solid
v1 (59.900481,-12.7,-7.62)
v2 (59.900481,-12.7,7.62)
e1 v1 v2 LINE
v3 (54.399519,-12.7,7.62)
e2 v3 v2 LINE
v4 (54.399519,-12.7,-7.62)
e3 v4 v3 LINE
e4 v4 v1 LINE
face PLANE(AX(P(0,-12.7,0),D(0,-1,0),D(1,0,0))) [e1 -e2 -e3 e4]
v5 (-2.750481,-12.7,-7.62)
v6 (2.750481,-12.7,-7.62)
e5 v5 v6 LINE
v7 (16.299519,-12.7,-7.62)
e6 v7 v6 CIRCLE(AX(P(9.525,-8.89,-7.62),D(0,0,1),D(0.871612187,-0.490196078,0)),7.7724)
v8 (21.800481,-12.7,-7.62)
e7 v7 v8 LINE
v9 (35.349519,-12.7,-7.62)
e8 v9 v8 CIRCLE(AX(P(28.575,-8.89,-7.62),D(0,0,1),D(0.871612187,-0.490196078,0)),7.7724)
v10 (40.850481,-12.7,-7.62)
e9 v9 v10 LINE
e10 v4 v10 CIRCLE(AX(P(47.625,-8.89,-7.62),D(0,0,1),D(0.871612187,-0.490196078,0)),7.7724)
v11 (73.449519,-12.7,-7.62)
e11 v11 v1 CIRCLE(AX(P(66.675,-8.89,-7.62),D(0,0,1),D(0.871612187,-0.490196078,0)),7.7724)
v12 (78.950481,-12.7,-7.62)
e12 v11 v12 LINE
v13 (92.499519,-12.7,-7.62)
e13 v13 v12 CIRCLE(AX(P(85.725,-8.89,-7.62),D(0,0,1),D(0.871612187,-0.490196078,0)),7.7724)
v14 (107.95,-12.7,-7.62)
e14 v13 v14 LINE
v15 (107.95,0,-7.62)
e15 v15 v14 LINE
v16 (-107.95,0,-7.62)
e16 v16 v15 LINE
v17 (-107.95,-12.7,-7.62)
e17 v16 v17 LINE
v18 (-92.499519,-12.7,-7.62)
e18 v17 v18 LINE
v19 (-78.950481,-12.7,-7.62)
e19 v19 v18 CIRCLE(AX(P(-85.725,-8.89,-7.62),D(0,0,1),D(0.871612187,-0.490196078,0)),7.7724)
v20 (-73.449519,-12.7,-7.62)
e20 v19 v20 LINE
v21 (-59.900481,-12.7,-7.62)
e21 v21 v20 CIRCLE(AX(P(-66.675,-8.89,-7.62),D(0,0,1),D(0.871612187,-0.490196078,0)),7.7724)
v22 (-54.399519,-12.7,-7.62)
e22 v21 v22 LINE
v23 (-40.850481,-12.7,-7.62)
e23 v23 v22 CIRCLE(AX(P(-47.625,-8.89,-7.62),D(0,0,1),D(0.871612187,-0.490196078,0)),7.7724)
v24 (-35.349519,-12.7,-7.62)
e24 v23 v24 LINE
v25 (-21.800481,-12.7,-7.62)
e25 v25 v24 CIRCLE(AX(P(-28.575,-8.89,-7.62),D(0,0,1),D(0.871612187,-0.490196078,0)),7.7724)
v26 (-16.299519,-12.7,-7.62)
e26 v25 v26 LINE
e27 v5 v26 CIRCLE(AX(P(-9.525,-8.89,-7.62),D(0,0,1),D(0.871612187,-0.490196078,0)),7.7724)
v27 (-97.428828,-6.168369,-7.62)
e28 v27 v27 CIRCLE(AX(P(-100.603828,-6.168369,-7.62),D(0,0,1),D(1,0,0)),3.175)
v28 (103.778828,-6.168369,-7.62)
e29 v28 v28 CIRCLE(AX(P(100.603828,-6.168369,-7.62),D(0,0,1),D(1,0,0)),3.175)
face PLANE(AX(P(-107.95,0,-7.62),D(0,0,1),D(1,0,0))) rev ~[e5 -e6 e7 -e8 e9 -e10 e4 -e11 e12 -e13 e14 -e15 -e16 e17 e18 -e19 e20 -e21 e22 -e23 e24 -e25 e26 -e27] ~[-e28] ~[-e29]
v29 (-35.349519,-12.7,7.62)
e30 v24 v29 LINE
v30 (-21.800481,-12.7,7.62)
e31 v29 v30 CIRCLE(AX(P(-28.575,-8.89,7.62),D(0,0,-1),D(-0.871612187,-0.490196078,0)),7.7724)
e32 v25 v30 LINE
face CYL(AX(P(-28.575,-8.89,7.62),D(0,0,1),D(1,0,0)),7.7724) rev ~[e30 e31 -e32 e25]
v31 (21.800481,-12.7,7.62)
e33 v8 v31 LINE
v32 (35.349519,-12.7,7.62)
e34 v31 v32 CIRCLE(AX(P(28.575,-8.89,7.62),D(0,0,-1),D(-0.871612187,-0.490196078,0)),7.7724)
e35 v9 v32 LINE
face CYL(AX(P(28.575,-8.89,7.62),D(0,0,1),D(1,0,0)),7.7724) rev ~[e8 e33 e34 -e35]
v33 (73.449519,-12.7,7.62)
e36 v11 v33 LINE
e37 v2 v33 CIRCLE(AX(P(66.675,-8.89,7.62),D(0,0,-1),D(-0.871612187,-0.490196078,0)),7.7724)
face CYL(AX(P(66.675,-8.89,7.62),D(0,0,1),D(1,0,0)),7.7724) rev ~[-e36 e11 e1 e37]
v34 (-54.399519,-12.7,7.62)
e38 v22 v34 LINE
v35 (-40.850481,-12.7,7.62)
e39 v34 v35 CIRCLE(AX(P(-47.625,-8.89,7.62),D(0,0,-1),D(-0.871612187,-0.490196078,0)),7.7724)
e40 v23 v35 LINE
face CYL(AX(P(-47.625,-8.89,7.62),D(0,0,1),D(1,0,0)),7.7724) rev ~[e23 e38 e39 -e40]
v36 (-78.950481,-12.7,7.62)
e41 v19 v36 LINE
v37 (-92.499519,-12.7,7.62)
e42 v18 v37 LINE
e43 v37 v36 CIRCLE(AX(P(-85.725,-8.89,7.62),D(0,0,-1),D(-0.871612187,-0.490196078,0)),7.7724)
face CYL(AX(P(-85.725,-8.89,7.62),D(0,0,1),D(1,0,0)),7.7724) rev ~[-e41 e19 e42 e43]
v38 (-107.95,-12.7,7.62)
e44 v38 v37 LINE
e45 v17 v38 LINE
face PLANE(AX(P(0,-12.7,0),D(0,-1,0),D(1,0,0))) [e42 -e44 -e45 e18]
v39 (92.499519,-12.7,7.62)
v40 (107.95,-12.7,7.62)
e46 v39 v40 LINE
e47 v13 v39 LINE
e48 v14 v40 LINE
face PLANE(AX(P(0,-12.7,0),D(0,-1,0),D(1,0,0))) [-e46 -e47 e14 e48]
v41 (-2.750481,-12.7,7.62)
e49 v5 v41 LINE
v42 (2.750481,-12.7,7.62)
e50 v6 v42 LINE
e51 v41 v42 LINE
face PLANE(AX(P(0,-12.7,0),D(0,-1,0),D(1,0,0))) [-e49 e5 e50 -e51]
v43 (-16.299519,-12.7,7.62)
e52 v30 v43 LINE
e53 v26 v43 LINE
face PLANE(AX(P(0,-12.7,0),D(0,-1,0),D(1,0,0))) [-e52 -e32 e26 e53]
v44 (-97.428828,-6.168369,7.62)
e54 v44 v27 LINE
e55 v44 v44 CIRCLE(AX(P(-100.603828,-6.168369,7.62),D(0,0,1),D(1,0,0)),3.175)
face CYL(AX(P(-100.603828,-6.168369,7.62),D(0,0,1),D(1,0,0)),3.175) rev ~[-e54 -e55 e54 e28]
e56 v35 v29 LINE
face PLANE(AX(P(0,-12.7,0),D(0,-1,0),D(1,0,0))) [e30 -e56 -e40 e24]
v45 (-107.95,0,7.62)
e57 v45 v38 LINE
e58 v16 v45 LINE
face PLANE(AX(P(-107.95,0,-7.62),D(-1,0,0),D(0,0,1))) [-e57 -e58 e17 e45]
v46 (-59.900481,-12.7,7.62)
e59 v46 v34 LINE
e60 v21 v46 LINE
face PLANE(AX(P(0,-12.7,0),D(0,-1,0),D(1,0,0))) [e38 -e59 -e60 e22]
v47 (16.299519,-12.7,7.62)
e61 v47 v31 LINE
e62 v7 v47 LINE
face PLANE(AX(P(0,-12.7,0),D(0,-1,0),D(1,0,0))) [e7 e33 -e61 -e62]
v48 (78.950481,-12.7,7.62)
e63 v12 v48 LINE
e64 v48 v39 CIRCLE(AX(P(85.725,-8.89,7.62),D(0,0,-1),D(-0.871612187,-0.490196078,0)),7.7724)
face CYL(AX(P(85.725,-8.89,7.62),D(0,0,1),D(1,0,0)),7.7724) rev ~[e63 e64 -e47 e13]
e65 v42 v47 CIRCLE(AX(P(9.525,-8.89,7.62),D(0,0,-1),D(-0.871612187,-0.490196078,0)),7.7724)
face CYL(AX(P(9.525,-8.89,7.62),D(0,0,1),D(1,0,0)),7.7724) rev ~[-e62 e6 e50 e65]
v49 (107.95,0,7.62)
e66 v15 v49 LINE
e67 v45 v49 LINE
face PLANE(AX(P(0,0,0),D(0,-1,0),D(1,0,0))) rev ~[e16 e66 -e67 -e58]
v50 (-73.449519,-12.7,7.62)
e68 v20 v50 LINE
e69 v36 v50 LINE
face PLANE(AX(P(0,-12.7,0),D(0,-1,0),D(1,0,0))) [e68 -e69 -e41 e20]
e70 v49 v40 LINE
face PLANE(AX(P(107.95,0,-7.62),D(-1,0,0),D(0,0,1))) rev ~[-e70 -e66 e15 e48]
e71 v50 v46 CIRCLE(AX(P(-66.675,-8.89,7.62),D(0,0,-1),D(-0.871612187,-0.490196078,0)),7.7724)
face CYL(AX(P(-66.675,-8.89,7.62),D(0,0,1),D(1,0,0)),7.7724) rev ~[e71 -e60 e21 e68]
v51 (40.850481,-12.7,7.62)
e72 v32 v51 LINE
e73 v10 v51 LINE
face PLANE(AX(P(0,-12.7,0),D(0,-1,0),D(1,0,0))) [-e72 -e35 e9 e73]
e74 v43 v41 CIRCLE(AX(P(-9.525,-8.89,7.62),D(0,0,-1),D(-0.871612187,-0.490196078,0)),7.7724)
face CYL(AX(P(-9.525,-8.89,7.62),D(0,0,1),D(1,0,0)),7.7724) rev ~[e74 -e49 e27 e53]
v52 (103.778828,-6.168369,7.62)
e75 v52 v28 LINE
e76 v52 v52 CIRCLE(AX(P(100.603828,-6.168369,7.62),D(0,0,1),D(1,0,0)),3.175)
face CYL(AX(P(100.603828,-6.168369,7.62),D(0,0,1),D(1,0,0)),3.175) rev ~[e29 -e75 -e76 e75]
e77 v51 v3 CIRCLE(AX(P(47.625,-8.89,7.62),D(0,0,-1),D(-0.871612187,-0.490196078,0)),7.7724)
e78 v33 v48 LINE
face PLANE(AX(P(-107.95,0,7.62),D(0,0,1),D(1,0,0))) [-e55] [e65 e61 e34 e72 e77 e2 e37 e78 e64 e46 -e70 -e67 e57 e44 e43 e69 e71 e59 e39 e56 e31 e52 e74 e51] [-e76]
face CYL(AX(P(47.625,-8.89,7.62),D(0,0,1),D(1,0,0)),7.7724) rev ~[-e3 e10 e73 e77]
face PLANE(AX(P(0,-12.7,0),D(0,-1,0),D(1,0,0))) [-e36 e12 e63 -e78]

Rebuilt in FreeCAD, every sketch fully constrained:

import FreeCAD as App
import Part
import Sketcher

V = App.Vector
Q = App.Units.Quantity


def add_polygon(sketch, points):
    """Adds a closed chain of lines whose ends are joined by coincident constraints."""
    first, n = sketch.GeometryCount, len(points)
    for a, b in zip(points, points[1:] + points[:1]):
        sketch.addGeometry(Part.LineSegment(App.Vector(*a, 0), App.Vector(*b, 0)), False)
    for i in range(n):
        sketch.addConstraint(Sketcher.Constraint("Coincident", first + i, 2, first + (i + 1) % n, 1))

doc = App.newDocument("Part")
body = doc.addObject("PartDesign::Body", "Body")

# Sketch on XZ plane
sketch1 = body.newObject("Sketcher::SketchObject", "Sketch")
sketch1.AttachmentSupport = (doc.getObject("XZ_Plane"), [""])
sketch1.MapMode = "FlatFace"
add_polygon(sketch1, [(-108, 8), (-108, -8), (108, -8), (108, 8)])  # lines 0-3
sketch1.addConstraint([
    Sketcher.Constraint("Vertical", 0),
    Sketcher.Constraint("Horizontal", 1),
    Sketcher.Constraint("Vertical", 2),
    Sketcher.Constraint("Horizontal", 3),
    Sketcher.Constraint("Symmetric", 0, 2, 2, 2, -1, 1),
    Sketcher.Constraint("DistanceX", 1, 1, 1, 2, Q("8.5 in")),
    Sketcher.Constraint("DistanceY", 0, 2, 0, 1, Q("0.6 in")),
])
pad1 = body.newObject("PartDesign::Pad", "Pad")
pad1.Profile = sketch1
pad1.Length = Q("0.5 in")

# Sketch on XY plane
sketch2 = body.newObject("Sketcher::SketchObject", "Sketch001")
sketch2.AttachmentSupport = (doc.getObject("XY_Plane"), [""])
sketch2.MapMode = "FlatFace"
sketch2.AttachmentOffset = App.Placement(V(0, 0, 0.3 * 25.4), App.Rotation())
sketch2.addGeometry([
    Part.Circle(V(-86, -9, 0), V(0, 0, 1), 8),  # 0
    Part.Circle(V(-67, -9, 0), V(0, 0, 1), 8),  # 1
    Part.Circle(V(-48, -9, 0), V(0, 0, 1), 8),  # 2
    Part.Circle(V(-29, -9, 0), V(0, 0, 1), 8),  # 3
    Part.Circle(V(-10, -9, 0), V(0, 0, 1), 8),  # 4
    Part.Circle(V(10, -9, 0), V(0, 0, 1), 8),  # 5
    Part.Circle(V(29, -9, 0), V(0, 0, 1), 8),  # 6
    Part.Circle(V(48, -9, 0), V(0, 0, 1), 8),  # 7
    Part.Circle(V(67, -9, 0), V(0, 0, 1), 8),  # 8
    Part.Circle(V(86, -9, 0), V(0, 0, 1), 8),  # 9
], False)
sketch2.addConstraint([
    Sketcher.Constraint("Equal", 0, 1),
    Sketcher.Constraint("Equal", 1, 2),
    Sketcher.Constraint("Equal", 2, 3),
    Sketcher.Constraint("Equal", 3, 4),
    Sketcher.Constraint("Equal", 4, 5),
    Sketcher.Constraint("Equal", 5, 6),
    Sketcher.Constraint("Equal", 6, 7),
    Sketcher.Constraint("Equal", 7, 8),
    Sketcher.Constraint("Equal", 8, 9),
    Sketcher.Constraint("Symmetric", 4, 3, 5, 3, -2),
    Sketcher.Constraint("Symmetric", 3, 3, 6, 3, -2),
    Sketcher.Constraint("Symmetric", 2, 3, 7, 3, -2),
    Sketcher.Constraint("Symmetric", 1, 3, 8, 3, -2),
    Sketcher.Constraint("Symmetric", 0, 3, 9, 3, -2),
    Sketcher.Constraint("Horizontal", 0, 3, 1, 3),
    Sketcher.Constraint("Horizontal", 1, 3, 2, 3),
    Sketcher.Constraint("Horizontal", 2, 3, 3, 3),
    Sketcher.Constraint("Horizontal", 3, 3, 4, 3),
    Sketcher.Constraint("Diameter", 0, Q("0.612 in")),
    Sketcher.Constraint("DistanceX", 0, 3, 4, 3, Q("3 in")),
    Sketcher.Constraint("DistanceX", 1, 3, 5, 3, Q("3 in")),
    Sketcher.Constraint("DistanceX", 2, 3, 6, 3, Q("3 in")),
    Sketcher.Constraint("DistanceX", 0, 3, 2, 3, Q("1.5 in")),
    Sketcher.Constraint("DistanceY", 0, 3, -1, 1, Q("0.35 in")),
    Sketcher.Constraint("DistanceX", 0, 3, 1, 3, Q("0.75 in")),
])
pocket1 = body.newObject("PartDesign::Pocket", "Pocket")
pocket1.Profile = sketch2
pocket1.Length = Q("0.6 in")

# Sketch on XY plane
sketch3 = body.newObject("Sketcher::SketchObject", "Sketch002")
sketch3.AttachmentSupport = (doc.getObject("XY_Plane"), [""])
sketch3.MapMode = "FlatFace"
sketch3.AttachmentOffset = App.Placement(V(0, 0, 0.3 * 25.4), App.Rotation())
sketch3.addGeometry([
    Part.Circle(V(-100.6, -6.2, 0), V(0, 0, 1), 3.2),
    Part.Circle(V(100.6, -6.2, 0), V(0, 0, 1), 3.2),
], False)
sketch3.addConstraint([
    Sketcher.Constraint("Equal", 0, 1),
    Sketcher.Constraint("Symmetric", 0, 3, 1, 3, -2),
    Sketcher.Constraint("Diameter", 0, Q("0.25 in")),
    Sketcher.Constraint("DistanceY", 0, 3, -1, 1, 6.168369),
    Sketcher.Constraint("DistanceX", 0, 3, -1, 1, 100.603828),
])
pocket2 = body.newObject("PartDesign::Pocket", "Pocket001")
pocket2.Profile = sketch3
pocket2.Type = "ThroughAll"

doc.recompute()
